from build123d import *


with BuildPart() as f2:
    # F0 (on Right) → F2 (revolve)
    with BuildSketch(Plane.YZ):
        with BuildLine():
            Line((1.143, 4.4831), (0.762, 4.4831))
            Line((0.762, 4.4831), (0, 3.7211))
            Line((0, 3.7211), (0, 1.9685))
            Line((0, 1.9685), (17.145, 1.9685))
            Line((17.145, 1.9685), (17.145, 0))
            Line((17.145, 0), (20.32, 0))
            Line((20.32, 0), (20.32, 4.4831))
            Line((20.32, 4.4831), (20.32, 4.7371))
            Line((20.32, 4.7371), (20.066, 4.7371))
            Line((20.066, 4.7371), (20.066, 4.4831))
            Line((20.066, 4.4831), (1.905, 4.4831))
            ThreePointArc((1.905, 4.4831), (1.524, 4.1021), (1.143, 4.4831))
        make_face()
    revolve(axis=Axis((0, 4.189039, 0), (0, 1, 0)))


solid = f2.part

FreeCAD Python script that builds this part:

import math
import FreeCAD as App
import Part
import Sketcher
Q = App.Units.Quantity

doc = App.newDocument("Part")
body = doc.addObject("PartDesign::Body", "Body")

# Sketch on YZ plane
sketch1 = doc.addObject("Sketcher::SketchObject", "Sketch")
body.addObject(sketch1)
sketch1.AttachmentSupport = (doc.YZ_Plane, [""])
sketch1.MapMode = "FlatFace"
sketch1.addGeometry(Part.LineSegment(App.Vector(1.14, 4.48, 0), App.Vector(0.76, 4.48, 0)), False)
sketch1.addGeometry(Part.LineSegment(App.Vector(0.76, 4.48, 0), App.Vector(0, 3.72, 0)), False)
sketch1.addGeometry(Part.LineSegment(App.Vector(0, 3.72, 0), App.Vector(0, 1.97, 0)), False)
sketch1.addGeometry(Part.LineSegment(App.Vector(0, 1.97, 0), App.Vector(17.14, 1.97, 0)), False)
sketch1.addGeometry(Part.LineSegment(App.Vector(17.14, 1.97, 0), App.Vector(17.14, 0, 0)), False)
sketch1.addGeometry(Part.LineSegment(App.Vector(17.14, 0, 0), App.Vector(20.32, 0, 0)), False)
sketch1.addGeometry(Part.LineSegment(App.Vector(20.32, 0, 0), App.Vector(20.32, 4.74, 0)), False)
sketch1.addGeometry(Part.LineSegment(App.Vector(20.32, 4.74, 0), App.Vector(20.07, 4.74, 0)), False)
sketch1.addGeometry(Part.LineSegment(App.Vector(20.07, 4.74, 0), App.Vector(20.07, 4.48, 0)), False)
sketch1.addGeometry(Part.LineSegment(App.Vector(20.07, 4.48, 0), App.Vector(1.91, 4.48, 0)), False)
sketch1.addGeometry(Part.ArcOfCircle(Part.Circle(App.Vector(1.52, 4.48, 0), App.Vector(0, 0, 1), 0.38), math.radians(180), math.radians(360)), False)
sketch1.addConstraint(Sketcher.Constraint("Coincident", 0, 2, 1, 1))
sketch1.addConstraint(Sketcher.Constraint("Coincident", 1, 2, 2, 1))
sketch1.addConstraint(Sketcher.Constraint("Coincident", 2, 2, 3, 1))
sketch1.addConstraint(Sketcher.Constraint("Coincident", 3, 2, 4, 1))
sketch1.addConstraint(Sketcher.Constraint("Coincident", 4, 2, 5, 1))
sketch1.addConstraint(Sketcher.Constraint("Coincident", 5, 2, 6, 1))
sketch1.addConstraint(Sketcher.Constraint("Coincident", 6, 2, 7, 1))
sketch1.addConstraint(Sketcher.Constraint("Coincident", 7, 2, 8, 1))
sketch1.addConstraint(Sketcher.Constraint("Coincident", 8, 2, 9, 1))
sketch1.addConstraint(Sketcher.Constraint("Coincident", 9, 2, 10, 2))
sketch1.addConstraint(Sketcher.Constraint("Coincident", 10, 1, 0, 1))
sketch1.addConstraint(Sketcher.Constraint("Horizontal", 0))
sketch1.addConstraint(Sketcher.Constraint("Vertical", 2))
sketch1.addConstraint(Sketcher.Constraint("Horizontal", 3))
sketch1.addConstraint(Sketcher.Constraint("Vertical", 4))
sketch1.addConstraint(Sketcher.Constraint("Horizontal", 5))
sketch1.addConstraint(Sketcher.Constraint("Vertical", 6))
sketch1.addConstraint(Sketcher.Constraint("Horizontal", 7))
sketch1.addConstraint(Sketcher.Constraint("Vertical", 8))
sketch1.addConstraint(Sketcher.Constraint("Horizontal", 9))
sketch1.addConstraint(Sketcher.Constraint("PointOnObject", 1, 2, -2))
sketch1.addConstraint(Sketcher.Constraint("PointOnObject", 4, 2, -1))
sketch1.addConstraint(Sketcher.Constraint("Horizontal", 10, 3, 0, 2))
sketch1.addConstraint(Sketcher.Constraint("Horizontal", 0, 2, 8, 2))
sketch1.addConstraint(Sketcher.Constraint("Equal", 7, 8))
sketch1.addConstraint(Sketcher.Constraint("Angle", 1, Q("-135 deg")))
sketch1.addConstraint(Sketcher.Constraint("Radius", 10, Q("0.015 in")))
sketch1.addConstraint(Sketcher.Constraint("DistanceX", 7, 2, 7, 1, Q("0.01 in")))
sketch1.addConstraint(Sketcher.Constraint("DistanceX", -1, 1, 5, 2, Q("0.8 in")))
sketch1.addConstraint(Sketcher.Constraint("DistanceX", 9, 2, 3, 2, Q("0.6 in")))
sketch1.addConstraint(Sketcher.Constraint("DistanceX", 0, 2, 0, 1, Q("0.015 in")))
sketch1.addConstraint(Sketcher.Constraint("DistanceX", 3, 1, 3, 2, Q("0.675 in")))
sketch1.addConstraint(Sketcher.Constraint("DistanceY", 2, 2, 2, 1, Q("0.069 in")))
sketch1.addConstraint(Sketcher.Constraint("DistanceY", 4, 2, 4, 1, Q("0.0775 in")))
revolution = doc.addObject("PartDesign::Revolution", "Revolution")
body.addObject(revolution)
revolution.Profile = sketch1
revolution.ReferenceAxis = (sketch1, ["H_Axis"])
revolution.Angle = 360

doc.recompute()
